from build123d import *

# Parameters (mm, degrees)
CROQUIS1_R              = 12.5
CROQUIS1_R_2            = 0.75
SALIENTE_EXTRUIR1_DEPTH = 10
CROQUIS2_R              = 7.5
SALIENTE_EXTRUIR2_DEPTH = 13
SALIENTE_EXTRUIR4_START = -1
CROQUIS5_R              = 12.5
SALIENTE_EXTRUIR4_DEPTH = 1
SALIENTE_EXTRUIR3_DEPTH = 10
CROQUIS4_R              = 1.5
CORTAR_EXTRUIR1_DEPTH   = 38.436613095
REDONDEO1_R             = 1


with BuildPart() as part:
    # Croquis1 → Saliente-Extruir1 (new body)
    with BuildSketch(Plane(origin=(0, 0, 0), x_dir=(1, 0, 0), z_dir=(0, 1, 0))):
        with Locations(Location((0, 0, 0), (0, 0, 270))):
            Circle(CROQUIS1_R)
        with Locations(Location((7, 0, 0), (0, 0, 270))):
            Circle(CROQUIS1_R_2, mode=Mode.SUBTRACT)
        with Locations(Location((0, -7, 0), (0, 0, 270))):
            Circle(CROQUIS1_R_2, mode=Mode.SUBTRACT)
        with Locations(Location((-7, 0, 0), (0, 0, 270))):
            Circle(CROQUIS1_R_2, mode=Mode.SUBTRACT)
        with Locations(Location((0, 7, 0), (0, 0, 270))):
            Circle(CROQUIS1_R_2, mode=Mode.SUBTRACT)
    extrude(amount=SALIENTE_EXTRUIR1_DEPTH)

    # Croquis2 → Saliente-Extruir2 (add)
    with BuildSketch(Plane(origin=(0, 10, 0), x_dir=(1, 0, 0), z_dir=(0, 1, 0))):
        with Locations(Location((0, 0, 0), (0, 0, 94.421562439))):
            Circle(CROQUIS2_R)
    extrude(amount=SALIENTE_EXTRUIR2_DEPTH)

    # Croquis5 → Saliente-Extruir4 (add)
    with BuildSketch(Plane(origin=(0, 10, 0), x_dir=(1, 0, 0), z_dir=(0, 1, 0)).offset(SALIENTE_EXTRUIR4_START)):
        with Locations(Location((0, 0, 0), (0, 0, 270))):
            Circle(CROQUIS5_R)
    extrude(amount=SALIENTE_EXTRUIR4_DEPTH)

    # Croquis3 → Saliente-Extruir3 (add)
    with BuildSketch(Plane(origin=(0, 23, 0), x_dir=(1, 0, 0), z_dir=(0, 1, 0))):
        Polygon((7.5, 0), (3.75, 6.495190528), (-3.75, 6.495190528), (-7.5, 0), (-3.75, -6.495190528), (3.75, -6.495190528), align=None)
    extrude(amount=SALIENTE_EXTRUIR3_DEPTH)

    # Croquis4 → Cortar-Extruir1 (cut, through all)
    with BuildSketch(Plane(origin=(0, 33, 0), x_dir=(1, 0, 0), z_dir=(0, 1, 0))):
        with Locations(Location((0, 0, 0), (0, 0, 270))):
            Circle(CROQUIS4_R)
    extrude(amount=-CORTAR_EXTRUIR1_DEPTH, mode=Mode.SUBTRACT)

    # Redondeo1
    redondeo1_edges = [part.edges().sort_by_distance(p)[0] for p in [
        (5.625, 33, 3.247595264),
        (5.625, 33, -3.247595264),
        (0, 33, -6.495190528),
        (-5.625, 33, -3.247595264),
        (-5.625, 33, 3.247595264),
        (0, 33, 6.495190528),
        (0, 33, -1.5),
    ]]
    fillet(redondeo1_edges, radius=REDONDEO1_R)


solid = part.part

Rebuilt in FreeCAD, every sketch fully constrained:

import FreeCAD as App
import Part
import Sketcher
from FreeCAD import Vector
Q = App.Units.Quantity


def edges_at(feature, points):
    """Names of the edges that pass closest to the given points."""
    edges = feature.Shape.Edges
    near = lambda p: min(range(len(edges)), key=lambda i: edges[i].distToShape(Part.Vertex(*p))[0])
    return sorted({f"Edge{near(p) + 1}" for p in points})

doc = App.newDocument("Part")
body = doc.addObject("PartDesign::Body", "Body")

# Sketch on XZ plane
sketch1 = body.newObject("Sketcher::SketchObject", "Sketch")
sketch1.AttachmentSupport = (doc.getObject("XZ_Plane"), [""])
sketch1.MapMode = "FlatFace"
sketch1.addGeometry([
    Part.Circle(Vector(0, 0, 0), Vector(0, 0, 1), 12.5),  # 0
    Part.Circle(Vector(0, -7, 0), Vector(0, 0, 1), 0.8),  # 1
    Part.Circle(Vector(-7, 0, 0), Vector(0, 0, 1), 0.8),  # 2
    Part.Circle(Vector(7, 0, 0), Vector(0, 0, 1), 0.8),  # 3
    Part.Circle(Vector(0, 7, 0), Vector(0, 0, 1), 0.8),  # 4
], False)
sketch1.addConstraint([
    Sketcher.Constraint("Coincident", 0, 3, -1, 1),
    Sketcher.Constraint("Equal", 1, 2),
    Sketcher.Constraint("Equal", 2, 3),
    Sketcher.Constraint("Equal", 3, 4),
    Sketcher.Constraint("Symmetric", 2, 3, 3, 3, -1, 1),
    Sketcher.Constraint("Symmetric", 1, 3, 4, 3, -1, 1),
    Sketcher.Constraint("PointOnObject", 1, 3, -2),
    Sketcher.Constraint("PointOnObject", 2, 3, -1),
    Sketcher.Constraint("Diameter", 0, 25.0),
    Sketcher.Constraint("Diameter", 1, 1.5),
    Sketcher.Constraint("DistanceY", 1, 3, -1, 1, 7.0),
    Sketcher.Constraint("DistanceX", 2, 3, -1, 1, 7.0),
])
pad1 = body.newObject("PartDesign::Pad", "Pad")
pad1.Profile = sketch1
pad1.Length = 10
pad1.Reversed = True

# Sketch on XZ plane
sketch2 = body.newObject("Sketcher::SketchObject", "Sketch001")
sketch2.AttachmentSupport = (doc.getObject("XZ_Plane"), [""])
sketch2.MapMode = "FlatFace"
sketch2.AttachmentOffset = App.Placement(Vector(0, 0, -10), App.Rotation())
sketch2.addGeometry(Part.Circle(Vector(0, 0, 0), Vector(0, 0, 1), 8), False)
sketch2.addConstraint([
    Sketcher.Constraint("Coincident", 0, 3, -1, 1),
    Sketcher.Constraint("Diameter", 0, 15.0),
])
pad2 = body.newObject("PartDesign::Pad", "Pad001")
pad2.Profile = sketch2
pad2.Length = 13
pad2.Reversed = True

# Sketch on XZ plane
sketch3 = body.newObject("Sketcher::SketchObject", "Sketch002")
sketch3.AttachmentSupport = (doc.getObject("XZ_Plane"), [""])
sketch3.MapMode = "FlatFace"
sketch3.AttachmentOffset = App.Placement(Vector(0, 0, -9), App.Rotation())
sketch3.addGeometry(Part.Circle(Vector(0, 0, 0), Vector(0, 0, 1), 12), False)
sketch3.addConstraint([
    Sketcher.Constraint("Coincident", 0, 3, -1, 1),
    Sketcher.Constraint("Diameter", 0, 25.0),
])
pad3 = body.newObject("PartDesign::Pad", "Pad002")
pad3.Profile = sketch3
pad3.Length = 1
pad3.Reversed = True

# Sketch on XZ plane
sketch4 = body.newObject("Sketcher::SketchObject", "Sketch003")
sketch4.AttachmentSupport = (doc.getObject("XZ_Plane"), [""])
sketch4.MapMode = "FlatFace"
sketch4.AttachmentOffset = App.Placement(Vector(0, 0, -23), App.Rotation())
sketch4.addGeometry([
    Part.LineSegment(Vector(8, 0, 0), Vector(4, -6, 0)),  # 0
    Part.LineSegment(Vector(4, -6, 0), Vector(-4, -6, 0)),  # 1
    Part.LineSegment(Vector(-4, -6, 0), Vector(-8, 0, 0)),  # 2
    Part.LineSegment(Vector(-8, 0, 0), Vector(-4, 6, 0)),  # 3
    Part.LineSegment(Vector(-4, 6, 0), Vector(4, 6, 0)),  # 4
    Part.LineSegment(Vector(4, 6, 0), Vector(8, 0, 0)),  # 5
], False)
sketch4.addConstraint([
    Sketcher.Constraint("Coincident", 0, 2, 1, 1),
    Sketcher.Constraint("Coincident", 1, 2, 2, 1),
    Sketcher.Constraint("Coincident", 2, 2, 3, 1),
    Sketcher.Constraint("Coincident", 3, 2, 4, 1),
    Sketcher.Constraint("Coincident", 4, 2, 5, 1),
    Sketcher.Constraint("Coincident", 5, 2, 0, 1),
    Sketcher.Constraint("Horizontal", 1),
    Sketcher.Constraint("Horizontal", 4),
    Sketcher.Constraint("Symmetric", 0, 2, 3, 2, -1, 1),
    Sketcher.Constraint("Symmetric", 2, 2, 5, 2, -1, 1),
    Sketcher.Constraint("PointOnObject", 2, 2, -1),
    Sketcher.Constraint("Parallel", 2, 5),
    Sketcher.Constraint("Vertical", 1, 2, 3, 2),
    Sketcher.Constraint("Angle", 0, Q("-120 deg")),
    Sketcher.Constraint("DistanceX", 1, 2, 1, 1, 7.5),
    Sketcher.Constraint("DistanceX", 2, 2, 5, 2, 15.0),
])
pad4 = body.newObject("PartDesign::Pad", "Pad003")
pad4.Profile = sketch4
pad4.Length = 10
pad4.Reversed = True

# Sketch on XZ plane
sketch5 = body.newObject("Sketcher::SketchObject", "Sketch004")
sketch5.AttachmentSupport = (doc.getObject("XZ_Plane"), [""])
sketch5.MapMode = "FlatFace"
sketch5.AttachmentOffset = App.Placement(Vector(0, 0, -33), App.Rotation())
sketch5.addGeometry(Part.Circle(Vector(0, 0, 0), Vector(0, 0, 1), 1.5), False)
sketch5.addConstraint([
    Sketcher.Constraint("Coincident", 0, 3, -1, 1),
    Sketcher.Constraint("Diameter", 0, 3.0),
])
pocket1 = body.newObject("PartDesign::Pocket", "Pocket")
pocket1.Profile = sketch5
pocket1.Type = "ThroughAll"
pocket1.Reversed = True
doc.recompute()

fillet = body.newObject("PartDesign::Fillet", "Fillet")
fillet.Base = (pocket1, edges_at(pocket1, [
    (5.625, 33, 3.248),
    (5.625, 33, -3.248),
    (0, 33, -6.495),
    (-5.625, 33, -3.248),
    (-5.625, 33, 3.248),
    (0, 33, 6.495),
    (0, 33, -1.5),
]))
fillet.Radius = 1

doc.recompute()
